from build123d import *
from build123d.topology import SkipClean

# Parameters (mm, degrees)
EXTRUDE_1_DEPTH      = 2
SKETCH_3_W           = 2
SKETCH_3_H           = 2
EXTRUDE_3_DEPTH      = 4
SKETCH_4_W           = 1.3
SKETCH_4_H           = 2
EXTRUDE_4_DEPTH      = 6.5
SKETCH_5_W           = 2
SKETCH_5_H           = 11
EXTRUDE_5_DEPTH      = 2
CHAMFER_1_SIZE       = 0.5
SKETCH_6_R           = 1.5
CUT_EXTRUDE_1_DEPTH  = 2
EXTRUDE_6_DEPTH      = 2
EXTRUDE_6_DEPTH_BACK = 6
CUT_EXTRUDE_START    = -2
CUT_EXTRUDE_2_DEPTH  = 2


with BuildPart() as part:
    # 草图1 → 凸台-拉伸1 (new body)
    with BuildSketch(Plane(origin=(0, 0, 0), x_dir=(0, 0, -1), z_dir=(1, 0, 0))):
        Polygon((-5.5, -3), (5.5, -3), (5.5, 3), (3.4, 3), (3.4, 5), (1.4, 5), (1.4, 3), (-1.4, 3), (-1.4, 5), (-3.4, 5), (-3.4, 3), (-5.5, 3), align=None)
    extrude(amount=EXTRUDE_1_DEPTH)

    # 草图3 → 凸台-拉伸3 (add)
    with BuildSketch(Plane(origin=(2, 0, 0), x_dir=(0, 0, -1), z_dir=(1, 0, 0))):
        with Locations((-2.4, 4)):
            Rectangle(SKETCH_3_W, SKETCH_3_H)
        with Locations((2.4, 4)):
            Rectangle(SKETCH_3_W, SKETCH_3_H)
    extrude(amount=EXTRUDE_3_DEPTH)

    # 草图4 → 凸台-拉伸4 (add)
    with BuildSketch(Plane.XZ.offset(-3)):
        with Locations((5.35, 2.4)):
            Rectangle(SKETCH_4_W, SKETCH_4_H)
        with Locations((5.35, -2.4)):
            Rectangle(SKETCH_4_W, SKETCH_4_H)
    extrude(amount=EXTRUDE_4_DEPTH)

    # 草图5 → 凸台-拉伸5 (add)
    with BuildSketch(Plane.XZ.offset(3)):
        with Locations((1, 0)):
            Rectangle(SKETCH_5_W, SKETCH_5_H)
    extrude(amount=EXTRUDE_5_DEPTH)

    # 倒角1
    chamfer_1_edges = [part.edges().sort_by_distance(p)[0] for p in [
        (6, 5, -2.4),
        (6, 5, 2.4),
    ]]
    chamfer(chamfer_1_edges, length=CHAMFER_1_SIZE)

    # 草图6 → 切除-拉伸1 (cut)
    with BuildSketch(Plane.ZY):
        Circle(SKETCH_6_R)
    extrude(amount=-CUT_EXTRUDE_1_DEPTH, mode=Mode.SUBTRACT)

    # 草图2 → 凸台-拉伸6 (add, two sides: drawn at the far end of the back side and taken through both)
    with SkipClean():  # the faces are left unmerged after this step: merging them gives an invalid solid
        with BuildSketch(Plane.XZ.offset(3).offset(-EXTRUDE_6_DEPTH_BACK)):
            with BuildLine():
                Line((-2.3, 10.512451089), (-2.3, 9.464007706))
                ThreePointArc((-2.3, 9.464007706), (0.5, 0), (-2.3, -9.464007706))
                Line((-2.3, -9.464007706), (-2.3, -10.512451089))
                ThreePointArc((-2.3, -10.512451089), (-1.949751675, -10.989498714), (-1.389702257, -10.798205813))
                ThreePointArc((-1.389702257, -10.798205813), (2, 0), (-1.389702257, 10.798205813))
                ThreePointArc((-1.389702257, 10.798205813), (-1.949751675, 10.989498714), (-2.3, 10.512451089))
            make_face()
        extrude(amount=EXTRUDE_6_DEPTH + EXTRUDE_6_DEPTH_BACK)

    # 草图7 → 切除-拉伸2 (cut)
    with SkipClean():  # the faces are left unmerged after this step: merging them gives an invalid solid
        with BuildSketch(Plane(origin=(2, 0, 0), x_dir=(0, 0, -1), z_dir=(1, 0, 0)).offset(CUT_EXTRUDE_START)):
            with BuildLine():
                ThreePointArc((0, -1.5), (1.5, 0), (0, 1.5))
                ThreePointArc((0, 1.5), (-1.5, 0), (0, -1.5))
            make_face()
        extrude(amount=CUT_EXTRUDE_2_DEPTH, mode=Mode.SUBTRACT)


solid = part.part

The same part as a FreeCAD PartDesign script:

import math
import FreeCAD as App
import Part
import Sketcher

V = App.Vector
Q = App.Units.Quantity


def edges_at(feature, points):
    """Names of the edges that pass closest to the given points."""
    edges = feature.Shape.Edges
    near = lambda p: min(range(len(edges)), key=lambda i: edges[i].distToShape(Part.Vertex(*p))[0])
    return sorted({f"Edge{near(p) + 1}" for p in points})


def add_polygon(sketch, points):
    """Adds a closed chain of lines whose ends are joined by coincident constraints."""
    first, n = sketch.GeometryCount, len(points)
    for a, b in zip(points, points[1:] + points[:1]):
        sketch.addGeometry(Part.LineSegment(App.Vector(*a, 0), App.Vector(*b, 0)), False)
    for i in range(n):
        sketch.addConstraint(Sketcher.Constraint("Coincident", first + i, 2, first + (i + 1) % n, 1))

doc = App.newDocument("Part")
body = doc.addObject("PartDesign::Body", "Body")

sketch1 = body.newObject("Sketcher::SketchObject", "Sketch")
sketch1.AttachmentSupport = (doc.getObject("YZ_Plane"), [""])
sketch1.MapMode = "FlatFace"
add_polygon(sketch1, [(-3, 5.5), (-3, -5.5), (3, -5.5), (3, -3.4), (5, -3.4), (5, -1.4), (3, -1.4), (3, 1.4), (5, 1.4), (5, 3.4), (3, 3.4), (3, 5.5)])
sketch1.addConstraint([
    Sketcher.Constraint("Vertical", 0),
    Sketcher.Constraint("Horizontal", 1),
    Sketcher.Constraint("Vertical", 2),
    Sketcher.Constraint("Horizontal", 3),
    Sketcher.Constraint("Vertical", 4),
    Sketcher.Constraint("Horizontal", 5),
    Sketcher.Constraint("Vertical", 6),
    Sketcher.Constraint("Horizontal", 7),
    Sketcher.Constraint("Vertical", 8),
    Sketcher.Constraint("Horizontal", 9),
    Sketcher.Constraint("Vertical", 10),
    Sketcher.Constraint("Horizontal", 11),
    Sketcher.Constraint("Symmetric", 0, 2, 10, 2, -1, 1),
    Sketcher.Constraint("Symmetric", 4, 2, 7, 2, -1),
    Sketcher.Constraint("Symmetric", 2, 2, 9, 2, -1),
    Sketcher.Constraint("Vertical", 2, 2, 5, 2),
    Sketcher.Constraint("Equal", 9, 4),
    Sketcher.Constraint("DistanceX", 1, 1, 1, 2, Q("6 mm")),
    Sketcher.Constraint("DistanceX", 3, 1, 3, 2, Q("2 mm")),
    Sketcher.Constraint("DistanceY", 0, 2, 0, 1, Q("11 mm")),
    Sketcher.Constraint("DistanceY", 2, 1, 2, 2, Q("2.1 mm")),
])
pad1 = body.newObject("PartDesign::Pad", "Pad")
pad1.Profile = sketch1
pad1.Length = 2

sketch2 = body.newObject("Sketcher::SketchObject", "Sketch001")
sketch2.AttachmentSupport = (doc.getObject("YZ_Plane"), [""])
sketch2.MapMode = "FlatFace"
sketch2.AttachmentOffset = App.Placement(V(0, 0, 2), App.Rotation())
add_polygon(sketch2, [(5, 3.4), (3, 3.4), (3, 1.4), (5, 1.4)])
add_polygon(sketch2, [(5, -1.4), (3, -1.4), (3, -3.4), (5, -3.4)])
sketch2.addConstraint([
    Sketcher.Constraint("Horizontal", 0),
    Sketcher.Constraint("Vertical", 1),
    Sketcher.Constraint("Horizontal", 2),
    Sketcher.Constraint("Vertical", 3),
    Sketcher.Constraint("Horizontal", 4),
    Sketcher.Constraint("Vertical", 5),
    Sketcher.Constraint("Horizontal", 6),
    Sketcher.Constraint("Vertical", 7),
    Sketcher.Constraint("Symmetric", 1, 2, 4, 2, -1),
    Sketcher.Constraint("Symmetric", 3, 2, 6, 2, -1),
    Sketcher.Constraint("Equal", 6, 1),
    Sketcher.Constraint("DistanceX", 0, 2, 0, 1, Q("2 mm")),
    Sketcher.Constraint("DistanceX", -1, 1, 0, 2, Q("3 mm")),
    Sketcher.Constraint("DistanceY", -1, 1, 0, 2, Q("3.4 mm")),
])
pad2 = body.newObject("PartDesign::Pad", "Pad001")
pad2.Profile = sketch2
pad2.Length = 4

sketch3 = body.newObject("Sketcher::SketchObject", "Sketch002")
sketch3.AttachmentSupport = (doc.getObject("XZ_Plane"), [""])
sketch3.MapMode = "FlatFace"
sketch3.AttachmentOffset = App.Placement(V(0, 0, -3), App.Rotation())
add_polygon(sketch3, [(4.7, 3.4), (4.7, 1.4), (6, 1.4), (6, 3.4)])
add_polygon(sketch3, [(4.7, -1.4), (4.7, -3.4), (6, -3.4), (6, -1.4)])
sketch3.addConstraint([
    Sketcher.Constraint("Vertical", 0),
    Sketcher.Constraint("Horizontal", 1),
    Sketcher.Constraint("Vertical", 2),
    Sketcher.Constraint("Horizontal", 3),
    Sketcher.Constraint("Vertical", 4),
    Sketcher.Constraint("Horizontal", 5),
    Sketcher.Constraint("Vertical", 6),
    Sketcher.Constraint("Horizontal", 7),
    Sketcher.Constraint("Symmetric", 3, 2, 4, 2, -1),
    Sketcher.Constraint("Symmetric", 1, 2, 6, 2, -1),
    Sketcher.Constraint("DistanceY", 0, 2, 0, 1, Q("2 mm")),
    Sketcher.Constraint("DistanceX", 1, 1, 1, 2, Q("1.3 mm")),
    Sketcher.Constraint("DistanceX", -1, 1, 1, 2, Q("6 mm")),
    Sketcher.Constraint("DistanceY", -1, 1, 0, 2, Q("1.4 mm")),
])
pad3 = body.newObject("PartDesign::Pad", "Pad002")
pad3.Profile = sketch3
pad3.Length = 6.5

sketch4 = body.newObject("Sketcher::SketchObject", "Sketch003")
sketch4.AttachmentSupport = (doc.getObject("XZ_Plane"), [""])
sketch4.MapMode = "FlatFace"
sketch4.AttachmentOffset = App.Placement(V(0, 0, 3), App.Rotation())
add_polygon(sketch4, [(0, 5.5), (0, -5.5), (2, -5.5), (2, 5.5)])
sketch4.addConstraint([
    Sketcher.Constraint("Vertical", 0),
    Sketcher.Constraint("Horizontal", 1),
    Sketcher.Constraint("Vertical", 2),
    Sketcher.Constraint("Horizontal", 3),
    Sketcher.Constraint("Symmetric", 0, 2, 3, 2, -1, 1),
    Sketcher.Constraint("DistanceX", 1, 1, 1, 2, Q("2 mm")),
    Sketcher.Constraint("DistanceY", 0, 2, 0, 1, Q("11 mm")),
])
pad4 = body.newObject("PartDesign::Pad", "Pad003")
pad4.Profile = sketch4
pad4.Length = 2
doc.recompute()

chamfer = body.newObject("PartDesign::Chamfer", "Chamfer")
chamfer.Base = (pad4, edges_at(pad4, [(6, 5, -2.4), (6, 5, 2.4)]))
chamfer.Size = 0.5

sketch5 = body.newObject("Sketcher::SketchObject", "Sketch004")
sketch5.AttachmentSupport = (doc.getObject("YZ_Plane"), [""])
sketch5.MapMode = "FlatFace"
sketch5.addGeometry(Part.Circle(V(0, 0, 0), V(0, 0, 1), 1.5), False)
sketch5.addConstraint([
    Sketcher.Constraint("Coincident", 0, 3, -1, 1),
    Sketcher.Constraint("Diameter", 0, Q("3 mm")),
])
pocket1 = body.newObject("PartDesign::Pocket", "Pocket")
pocket1.Profile = sketch5
pocket1.Length = 2
pocket1.Reversed = True

sketch6 = body.newObject("Sketcher::SketchObject", "Sketch005")
sketch6.AttachmentSupport = (doc.getObject("XZ_Plane"), [""])
sketch6.MapMode = "FlatFace"
sketch6.AttachmentOffset = App.Placement(V(0, 0, 3), App.Rotation())
sketch6.addGeometry([
    Part.LineSegment(V(-2.3, 10.5, 0), V(-2.3, 9.5, 0)),
    Part.ArcOfCircle(Part.Circle(V(-16.9, 0, 0), V(0, 0, 1), 17.4), math.radians(-33), math.radians(33)),
    Part.LineSegment(V(-2.3, -9.5, 0), V(-2.3, -10.5, 0)),
    Part.ArcOfCircle(Part.Circle(V(-1.8, -10.5, 0), V(0, 0, 1), 0.5), math.radians(180), math.radians(325)),
    Part.ArcOfCircle(Part.Circle(V(-16.9, 0, 0), V(0, 0, 1), 18.9), math.radians(-35), math.radians(35)),
    Part.ArcOfCircle(Part.Circle(V(-1.8, 10.5, 0), V(0, 0, 1), 0.5), math.radians(35), math.radians(180)),
], False)
sketch6.addConstraint([
    Sketcher.Constraint("Coincident", 0, 2, 1, 2),
    Sketcher.Constraint("Coincident", 1, 1, 2, 1),
    Sketcher.Constraint("Tangent", 2, 2, 3, 1),
    Sketcher.Constraint("Tangent", 3, 2, 4, 1),
    Sketcher.Constraint("Tangent", 4, 2, 5, 1),
    Sketcher.Constraint("Tangent", 5, 2, 0, 1),
    Sketcher.Constraint("Vertical", 0),
    Sketcher.Constraint("Vertical", 2),
    Sketcher.Constraint("Coincident", 4, 3, 1, 3),
    Sketcher.Constraint("Equal", 3, 5),
    Sketcher.Constraint("Symmetric", 3, 3, 5, 3, -1),
    Sketcher.Constraint("Radius", 3, Q("0.5 mm")),
    Sketcher.Constraint("DistanceX", 3, 3, -1, 1, Q("1.8 mm")),
    Sketcher.Constraint("Radius", 1, Q("17.394186 mm")),
    Sketcher.Constraint("Radius", 4, Q("18.894186 mm")),
    Sketcher.Constraint("DistanceY", 0, 2, 0, 1, Q("1.048443 mm")),
])
pad5 = body.newObject("PartDesign::Pad", "Pad004")
pad5.Profile = sketch6
pad5.Type = "TwoLengths"
pad5.Length = 2
pad5.Length2 = 6

sketch7 = body.newObject("Sketcher::SketchObject", "Sketch006")
sketch7.AttachmentSupport = (doc.getObject("YZ_Plane"), [""])
sketch7.MapMode = "FlatFace"
sketch7.addGeometry(Part.Circle(V(0, 0, 0), V(0, 0, 1), 1.5), False)
sketch7.addConstraint([
    Sketcher.Constraint("Coincident", 0, 3, -1, 1),
    Sketcher.Constraint("Diameter", 0, Q("3 mm")),
])
pocket2 = body.newObject("PartDesign::Pocket", "Pocket001")
pocket2.Profile = sketch7
pocket2.Length = 2
pocket2.Reversed = True

doc.recompute()
